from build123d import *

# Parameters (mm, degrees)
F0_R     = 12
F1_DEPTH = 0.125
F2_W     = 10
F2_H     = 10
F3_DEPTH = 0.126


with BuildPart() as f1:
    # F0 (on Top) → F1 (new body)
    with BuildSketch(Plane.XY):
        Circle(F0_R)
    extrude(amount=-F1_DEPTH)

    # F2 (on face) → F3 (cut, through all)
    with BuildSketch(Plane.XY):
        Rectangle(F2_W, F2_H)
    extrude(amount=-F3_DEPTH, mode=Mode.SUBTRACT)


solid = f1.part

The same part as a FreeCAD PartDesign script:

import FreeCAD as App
import Part
import Sketcher

V = App.Vector
Q = App.Units.Quantity

doc = App.newDocument("Part")
body = doc.addObject("PartDesign::Body", "Body")

sketch1 = body.newObject("Sketcher::SketchObject", "Sketch")
sketch1.AttachmentSupport = (doc.getObject("XY_Plane"), [""])
sketch1.MapMode = "FlatFace"
sketch1.addGeometry(Part.Circle(V(0, 0, 0), V(0, 0, 1), 12), False)
sketch1.addConstraint(Sketcher.Constraint("Coincident", 0, 3, -1, 1))
sketch1.addConstraint(Sketcher.Constraint("Diameter", 0, Q("24 mm")))
pad1 = body.newObject("PartDesign::Pad", "Pad")
pad1.Profile = sketch1
pad1.Length = 0.125
pad1.Reversed = True

sketch2 = body.newObject("Sketcher::SketchObject", "Sketch001")
sketch2.AttachmentSupport = (doc.getObject("XY_Plane"), [""])
sketch2.MapMode = "FlatFace"
sketch2.addGeometry(Part.LineSegment(V(-5, 5, 0), V(-5, -5, 0)), False)
sketch2.addGeometry(Part.LineSegment(V(-5, -5, 0), V(5, -5, 0)), False)
sketch2.addGeometry(Part.LineSegment(V(5, -5, 0), V(5, 5, 0)), False)
sketch2.addGeometry(Part.LineSegment(V(5, 5, 0), V(-5, 5, 0)), False)
sketch2.addConstraint(Sketcher.Constraint("Coincident", 0, 2, 1, 1))
sketch2.addConstraint(Sketcher.Constraint("Coincident", 1, 2, 2, 1))
sketch2.addConstraint(Sketcher.Constraint("Coincident", 2, 2, 3, 1))
sketch2.addConstraint(Sketcher.Constraint("Coincident", 3, 2, 0, 1))
sketch2.addConstraint(Sketcher.Constraint("Vertical", 0))
sketch2.addConstraint(Sketcher.Constraint("Horizontal", 1))
sketch2.addConstraint(Sketcher.Constraint("Vertical", 2))
sketch2.addConstraint(Sketcher.Constraint("Horizontal", 3))
sketch2.addConstraint(Sketcher.Constraint("Symmetric", 0, 2, 2, 2, -1, 1))
sketch2.addConstraint(Sketcher.Constraint("Equal", 3, 0))
sketch2.addConstraint(Sketcher.Constraint("DistanceX", 1, 1, 1, 2, Q("10 mm")))
pocket1 = body.newObject("PartDesign::Pocket", "Pocket")
pocket1.Profile = sketch2
pocket1.Type = "ThroughAll"

doc.recompute()
